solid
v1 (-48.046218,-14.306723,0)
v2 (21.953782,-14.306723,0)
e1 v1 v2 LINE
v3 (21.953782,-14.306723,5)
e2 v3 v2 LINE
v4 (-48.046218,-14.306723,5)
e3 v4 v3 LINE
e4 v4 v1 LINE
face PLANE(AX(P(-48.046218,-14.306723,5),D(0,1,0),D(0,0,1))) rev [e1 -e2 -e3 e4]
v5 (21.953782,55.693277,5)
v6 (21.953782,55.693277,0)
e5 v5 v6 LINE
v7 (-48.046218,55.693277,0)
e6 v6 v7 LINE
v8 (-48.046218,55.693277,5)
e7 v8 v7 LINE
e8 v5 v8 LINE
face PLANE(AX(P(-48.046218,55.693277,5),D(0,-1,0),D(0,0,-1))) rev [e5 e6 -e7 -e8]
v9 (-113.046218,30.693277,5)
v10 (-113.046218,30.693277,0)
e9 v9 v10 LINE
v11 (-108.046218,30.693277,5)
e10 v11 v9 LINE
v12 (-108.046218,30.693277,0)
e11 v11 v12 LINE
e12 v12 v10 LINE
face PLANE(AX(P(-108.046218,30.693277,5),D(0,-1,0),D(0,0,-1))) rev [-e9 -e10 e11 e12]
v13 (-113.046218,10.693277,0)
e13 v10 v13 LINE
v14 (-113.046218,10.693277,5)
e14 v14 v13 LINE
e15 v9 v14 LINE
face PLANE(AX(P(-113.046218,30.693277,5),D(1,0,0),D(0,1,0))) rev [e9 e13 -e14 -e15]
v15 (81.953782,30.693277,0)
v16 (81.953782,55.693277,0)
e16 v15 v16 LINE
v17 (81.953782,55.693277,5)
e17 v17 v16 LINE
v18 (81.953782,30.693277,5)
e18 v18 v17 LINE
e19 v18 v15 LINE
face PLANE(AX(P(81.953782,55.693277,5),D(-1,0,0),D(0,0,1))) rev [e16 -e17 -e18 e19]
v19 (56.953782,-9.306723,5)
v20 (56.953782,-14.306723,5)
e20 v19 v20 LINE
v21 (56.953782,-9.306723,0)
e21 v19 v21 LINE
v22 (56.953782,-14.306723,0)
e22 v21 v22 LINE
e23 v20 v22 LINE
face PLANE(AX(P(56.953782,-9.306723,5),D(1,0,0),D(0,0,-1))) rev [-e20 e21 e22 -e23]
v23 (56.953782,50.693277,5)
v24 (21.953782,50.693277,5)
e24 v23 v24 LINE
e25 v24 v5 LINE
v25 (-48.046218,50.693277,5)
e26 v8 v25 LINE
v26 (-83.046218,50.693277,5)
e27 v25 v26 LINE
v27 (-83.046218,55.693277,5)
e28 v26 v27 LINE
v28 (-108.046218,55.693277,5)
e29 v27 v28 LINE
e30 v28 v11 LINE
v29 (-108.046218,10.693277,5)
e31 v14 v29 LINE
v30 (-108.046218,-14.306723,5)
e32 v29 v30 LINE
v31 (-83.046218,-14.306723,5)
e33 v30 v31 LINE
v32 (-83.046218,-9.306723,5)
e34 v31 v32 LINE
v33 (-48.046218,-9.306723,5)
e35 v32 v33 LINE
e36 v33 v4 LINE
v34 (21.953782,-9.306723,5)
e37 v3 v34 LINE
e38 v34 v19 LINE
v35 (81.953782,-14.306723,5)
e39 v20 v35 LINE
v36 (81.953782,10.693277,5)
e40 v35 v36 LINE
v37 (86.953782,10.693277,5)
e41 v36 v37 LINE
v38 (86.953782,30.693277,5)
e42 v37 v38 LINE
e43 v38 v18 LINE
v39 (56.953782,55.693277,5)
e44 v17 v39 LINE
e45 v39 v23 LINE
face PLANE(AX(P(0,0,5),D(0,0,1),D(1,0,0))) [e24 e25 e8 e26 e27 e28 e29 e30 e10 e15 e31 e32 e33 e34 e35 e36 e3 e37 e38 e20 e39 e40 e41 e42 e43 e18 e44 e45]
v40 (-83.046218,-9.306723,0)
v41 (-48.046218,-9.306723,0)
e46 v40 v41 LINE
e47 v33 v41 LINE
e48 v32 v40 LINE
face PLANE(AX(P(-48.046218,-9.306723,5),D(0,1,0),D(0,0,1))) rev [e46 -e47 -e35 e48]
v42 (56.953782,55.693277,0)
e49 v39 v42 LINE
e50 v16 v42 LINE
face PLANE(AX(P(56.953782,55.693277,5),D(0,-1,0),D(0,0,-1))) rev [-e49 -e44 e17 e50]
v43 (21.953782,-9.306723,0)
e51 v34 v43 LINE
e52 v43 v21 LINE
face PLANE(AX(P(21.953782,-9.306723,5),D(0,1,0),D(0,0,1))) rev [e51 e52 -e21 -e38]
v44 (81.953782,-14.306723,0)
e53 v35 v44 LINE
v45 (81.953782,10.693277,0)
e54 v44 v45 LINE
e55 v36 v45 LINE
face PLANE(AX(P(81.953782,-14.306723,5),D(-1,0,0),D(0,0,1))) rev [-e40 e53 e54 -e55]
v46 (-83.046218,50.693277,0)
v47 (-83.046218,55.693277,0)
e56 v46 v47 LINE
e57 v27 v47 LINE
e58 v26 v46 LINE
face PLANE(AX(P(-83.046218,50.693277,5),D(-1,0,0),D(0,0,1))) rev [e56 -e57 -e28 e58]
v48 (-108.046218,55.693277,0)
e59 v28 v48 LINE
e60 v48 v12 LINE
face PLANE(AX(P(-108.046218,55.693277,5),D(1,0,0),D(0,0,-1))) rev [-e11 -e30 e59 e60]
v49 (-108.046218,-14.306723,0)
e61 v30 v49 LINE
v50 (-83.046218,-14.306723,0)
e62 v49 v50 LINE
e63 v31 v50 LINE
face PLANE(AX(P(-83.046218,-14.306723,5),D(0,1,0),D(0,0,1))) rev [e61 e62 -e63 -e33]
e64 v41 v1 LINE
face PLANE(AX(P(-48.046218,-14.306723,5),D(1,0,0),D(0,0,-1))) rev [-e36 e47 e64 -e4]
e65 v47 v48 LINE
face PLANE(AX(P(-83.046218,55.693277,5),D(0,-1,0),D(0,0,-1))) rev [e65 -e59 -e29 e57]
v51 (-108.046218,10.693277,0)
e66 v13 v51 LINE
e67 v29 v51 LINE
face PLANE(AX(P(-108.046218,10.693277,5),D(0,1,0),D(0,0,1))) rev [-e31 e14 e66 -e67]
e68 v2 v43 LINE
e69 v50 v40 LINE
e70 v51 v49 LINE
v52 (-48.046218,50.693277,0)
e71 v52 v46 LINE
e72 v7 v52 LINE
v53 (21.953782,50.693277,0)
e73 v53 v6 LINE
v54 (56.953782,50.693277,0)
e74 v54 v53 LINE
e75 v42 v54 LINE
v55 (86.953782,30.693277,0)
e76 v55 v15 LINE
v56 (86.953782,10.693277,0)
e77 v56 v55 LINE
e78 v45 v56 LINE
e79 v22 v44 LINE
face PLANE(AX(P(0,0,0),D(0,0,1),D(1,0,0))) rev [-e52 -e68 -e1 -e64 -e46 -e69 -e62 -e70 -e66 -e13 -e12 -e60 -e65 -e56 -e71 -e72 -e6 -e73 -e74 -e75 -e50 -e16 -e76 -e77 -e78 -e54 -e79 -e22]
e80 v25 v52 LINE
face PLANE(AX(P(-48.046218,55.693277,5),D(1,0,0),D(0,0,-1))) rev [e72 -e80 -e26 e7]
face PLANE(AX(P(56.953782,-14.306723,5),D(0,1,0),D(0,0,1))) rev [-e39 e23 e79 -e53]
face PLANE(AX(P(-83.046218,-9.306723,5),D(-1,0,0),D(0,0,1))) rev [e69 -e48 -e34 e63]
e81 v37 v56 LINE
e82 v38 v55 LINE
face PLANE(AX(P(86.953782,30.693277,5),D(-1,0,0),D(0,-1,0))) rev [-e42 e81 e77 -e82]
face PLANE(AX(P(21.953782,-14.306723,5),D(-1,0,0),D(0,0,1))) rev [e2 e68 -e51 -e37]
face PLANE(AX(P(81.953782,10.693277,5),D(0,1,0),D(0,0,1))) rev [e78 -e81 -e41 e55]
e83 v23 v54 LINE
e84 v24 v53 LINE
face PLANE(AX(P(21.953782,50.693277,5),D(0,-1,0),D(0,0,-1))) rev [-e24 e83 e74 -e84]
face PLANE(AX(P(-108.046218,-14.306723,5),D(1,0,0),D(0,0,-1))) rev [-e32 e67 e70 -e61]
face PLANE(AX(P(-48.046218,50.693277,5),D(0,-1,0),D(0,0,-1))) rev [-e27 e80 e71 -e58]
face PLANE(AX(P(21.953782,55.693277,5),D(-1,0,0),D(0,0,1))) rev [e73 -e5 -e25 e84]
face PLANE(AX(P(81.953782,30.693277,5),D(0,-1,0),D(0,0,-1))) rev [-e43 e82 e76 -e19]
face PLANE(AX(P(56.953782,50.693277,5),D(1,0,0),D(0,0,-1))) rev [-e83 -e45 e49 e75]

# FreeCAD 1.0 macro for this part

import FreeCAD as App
import Part
import Sketcher


def add_polygon(sketch, points):
    """Adds a closed chain of lines whose ends are joined by coincident constraints."""
    first, n = sketch.GeometryCount, len(points)
    for a, b in zip(points, points[1:] + points[:1]):
        sketch.addGeometry(Part.LineSegment(App.Vector(*a, 0), App.Vector(*b, 0)), False)
    for i in range(n):
        sketch.addConstraint(Sketcher.Constraint("Coincident", first + i, 2, first + (i + 1) % n, 1))

doc = App.newDocument("Part")
body = doc.addObject("PartDesign::Body", "Body")

# Sketch on XY plane
sketch1 = body.newObject("Sketcher::SketchObject", "Sketch")
sketch1.AttachmentSupport = (doc.getObject("XY_Plane"), [""])
sketch1.MapMode = "FlatFace"
add_polygon(sketch1, [(22, 56), (-48, 56), (-48, 51), (-83, 51), (-83, 56), (-108, 56), (-108, 31), (-113, 31), (-113, 11), (-108, 11), (-108, -14), (-83, -14), (-83, -9), (-48, -9), (-48, -14), (22, -14), (22, -9), (57, -9), (57, -14), (82, -14), (82, 11), (87, 11), (87, 31), (82, 31), (82, 56), (57, 56), (57, 51), (22, 51)])  # lines 0-27
sketch1.addConstraint(Sketcher.Constraint("Horizontal", 0))
sketch1.addConstraint(Sketcher.Constraint("Vertical", 1))
sketch1.addConstraint(Sketcher.Constraint("Horizontal", 2))
sketch1.addConstraint(Sketcher.Constraint("Vertical", 3))
sketch1.addConstraint(Sketcher.Constraint("Horizontal", 4))
sketch1.addConstraint(Sketcher.Constraint("Vertical", 5))
sketch1.addConstraint(Sketcher.Constraint("Horizontal", 6))
sketch1.addConstraint(Sketcher.Constraint("Vertical", 7))
sketch1.addConstraint(Sketcher.Constraint("Horizontal", 8))
sketch1.addConstraint(Sketcher.Constraint("Vertical", 9))
sketch1.addConstraint(Sketcher.Constraint("Horizontal", 10))
sketch1.addConstraint(Sketcher.Constraint("Vertical", 11))
sketch1.addConstraint(Sketcher.Constraint("Horizontal", 12))
sketch1.addConstraint(Sketcher.Constraint("Vertical", 13))
sketch1.addConstraint(Sketcher.Constraint("Horizontal", 14))
sketch1.addConstraint(Sketcher.Constraint("Vertical", 15))
sketch1.addConstraint(Sketcher.Constraint("Horizontal", 16))
sketch1.addConstraint(Sketcher.Constraint("Vertical", 17))
sketch1.addConstraint(Sketcher.Constraint("Horizontal", 18))
sketch1.addConstraint(Sketcher.Constraint("Vertical", 19))
sketch1.addConstraint(Sketcher.Constraint("Horizontal", 20))
sketch1.addConstraint(Sketcher.Constraint("Vertical", 21))
sketch1.addConstraint(Sketcher.Constraint("Horizontal", 22))
sketch1.addConstraint(Sketcher.Constraint("Vertical", 23))
sketch1.addConstraint(Sketcher.Constraint("Horizontal", 24))
sketch1.addConstraint(Sketcher.Constraint("Vertical", 25))
sketch1.addConstraint(Sketcher.Constraint("Horizontal", 26))
sketch1.addConstraint(Sketcher.Constraint("Vertical", 27))
sketch1.addConstraint(Sketcher.Constraint("Horizontal", 0, 2, 3, 2))
sketch1.addConstraint(Sketcher.Constraint("Horizontal", 10, 2, 13, 2))
sketch1.addConstraint(Sketcher.Constraint("Horizontal", 12, 2, 15, 2))
sketch1.addConstraint(Sketcher.Constraint("Horizontal", 14, 2, 17, 2))
sketch1.addConstraint(Sketcher.Constraint("Horizontal", 8, 2, 19, 2))
sketch1.addConstraint(Sketcher.Constraint("Horizontal", 6, 2, 21, 2))
sketch1.addConstraint(Sketcher.Constraint("Horizontal", 4, 2, 23, 2))
sketch1.addConstraint(Sketcher.Constraint("Horizontal", 2, 2, 25, 2))
sketch1.addConstraint(Sketcher.Constraint("Vertical", 5, 2, 8, 2))
sketch1.addConstraint(Sketcher.Constraint("Vertical", 3, 2, 10, 2))
sketch1.addConstraint(Sketcher.Constraint("Vertical", 1, 2, 12, 2))
sketch1.addConstraint(Sketcher.Constraint("Vertical", 19, 2, 22, 2))
sketch1.addConstraint(Sketcher.Constraint("Vertical", 17, 2, 24, 2))
sketch1.addConstraint(Sketcher.Constraint("Vertical", 15, 2, 26, 2))
sketch1.addConstraint(Sketcher.Constraint("Equal", 12, 16))
sketch1.addConstraint(Sketcher.Constraint("Equal", 10, 18))
sketch1.addConstraint(Sketcher.Constraint("Equal", 8, 20))
sketch1.addConstraint(Sketcher.Constraint("Equal", 22, 1))
sketch1.addConstraint(Sketcher.Constraint("Equal", 24, 5))
sketch1.addConstraint(Sketcher.Constraint("Equal", 5, 9))
sketch1.addConstraint(Sketcher.Constraint("Equal", 3, 11))
sketch1.addConstraint(Sketcher.Constraint("DistanceX", 0, 2, 0, 1, 70.0))
sketch1.addConstraint(Sketcher.Constraint("DistanceX", 2, 2, 2, 1, 35.0))
sketch1.addConstraint(Sketcher.Constraint("DistanceX", 4, 2, 4, 1, 25.0))
sketch1.addConstraint(Sketcher.Constraint("DistanceX", 6, 2, 6, 1, 5.0))
sketch1.addConstraint(Sketcher.Constraint("DistanceY", 7, 2, 7, 1, 20.0))
sketch1.addConstraint(Sketcher.Constraint("DistanceX", 0, 2, -1, 1, 48.046218))
sketch1.addConstraint(Sketcher.Constraint("DistanceY", -1, 1, 0, 2, 55.693277))
pad1 = body.newObject("PartDesign::Pad", "Pad")
pad1.Profile = sketch1
pad1.Length = 5

doc.recompute()
